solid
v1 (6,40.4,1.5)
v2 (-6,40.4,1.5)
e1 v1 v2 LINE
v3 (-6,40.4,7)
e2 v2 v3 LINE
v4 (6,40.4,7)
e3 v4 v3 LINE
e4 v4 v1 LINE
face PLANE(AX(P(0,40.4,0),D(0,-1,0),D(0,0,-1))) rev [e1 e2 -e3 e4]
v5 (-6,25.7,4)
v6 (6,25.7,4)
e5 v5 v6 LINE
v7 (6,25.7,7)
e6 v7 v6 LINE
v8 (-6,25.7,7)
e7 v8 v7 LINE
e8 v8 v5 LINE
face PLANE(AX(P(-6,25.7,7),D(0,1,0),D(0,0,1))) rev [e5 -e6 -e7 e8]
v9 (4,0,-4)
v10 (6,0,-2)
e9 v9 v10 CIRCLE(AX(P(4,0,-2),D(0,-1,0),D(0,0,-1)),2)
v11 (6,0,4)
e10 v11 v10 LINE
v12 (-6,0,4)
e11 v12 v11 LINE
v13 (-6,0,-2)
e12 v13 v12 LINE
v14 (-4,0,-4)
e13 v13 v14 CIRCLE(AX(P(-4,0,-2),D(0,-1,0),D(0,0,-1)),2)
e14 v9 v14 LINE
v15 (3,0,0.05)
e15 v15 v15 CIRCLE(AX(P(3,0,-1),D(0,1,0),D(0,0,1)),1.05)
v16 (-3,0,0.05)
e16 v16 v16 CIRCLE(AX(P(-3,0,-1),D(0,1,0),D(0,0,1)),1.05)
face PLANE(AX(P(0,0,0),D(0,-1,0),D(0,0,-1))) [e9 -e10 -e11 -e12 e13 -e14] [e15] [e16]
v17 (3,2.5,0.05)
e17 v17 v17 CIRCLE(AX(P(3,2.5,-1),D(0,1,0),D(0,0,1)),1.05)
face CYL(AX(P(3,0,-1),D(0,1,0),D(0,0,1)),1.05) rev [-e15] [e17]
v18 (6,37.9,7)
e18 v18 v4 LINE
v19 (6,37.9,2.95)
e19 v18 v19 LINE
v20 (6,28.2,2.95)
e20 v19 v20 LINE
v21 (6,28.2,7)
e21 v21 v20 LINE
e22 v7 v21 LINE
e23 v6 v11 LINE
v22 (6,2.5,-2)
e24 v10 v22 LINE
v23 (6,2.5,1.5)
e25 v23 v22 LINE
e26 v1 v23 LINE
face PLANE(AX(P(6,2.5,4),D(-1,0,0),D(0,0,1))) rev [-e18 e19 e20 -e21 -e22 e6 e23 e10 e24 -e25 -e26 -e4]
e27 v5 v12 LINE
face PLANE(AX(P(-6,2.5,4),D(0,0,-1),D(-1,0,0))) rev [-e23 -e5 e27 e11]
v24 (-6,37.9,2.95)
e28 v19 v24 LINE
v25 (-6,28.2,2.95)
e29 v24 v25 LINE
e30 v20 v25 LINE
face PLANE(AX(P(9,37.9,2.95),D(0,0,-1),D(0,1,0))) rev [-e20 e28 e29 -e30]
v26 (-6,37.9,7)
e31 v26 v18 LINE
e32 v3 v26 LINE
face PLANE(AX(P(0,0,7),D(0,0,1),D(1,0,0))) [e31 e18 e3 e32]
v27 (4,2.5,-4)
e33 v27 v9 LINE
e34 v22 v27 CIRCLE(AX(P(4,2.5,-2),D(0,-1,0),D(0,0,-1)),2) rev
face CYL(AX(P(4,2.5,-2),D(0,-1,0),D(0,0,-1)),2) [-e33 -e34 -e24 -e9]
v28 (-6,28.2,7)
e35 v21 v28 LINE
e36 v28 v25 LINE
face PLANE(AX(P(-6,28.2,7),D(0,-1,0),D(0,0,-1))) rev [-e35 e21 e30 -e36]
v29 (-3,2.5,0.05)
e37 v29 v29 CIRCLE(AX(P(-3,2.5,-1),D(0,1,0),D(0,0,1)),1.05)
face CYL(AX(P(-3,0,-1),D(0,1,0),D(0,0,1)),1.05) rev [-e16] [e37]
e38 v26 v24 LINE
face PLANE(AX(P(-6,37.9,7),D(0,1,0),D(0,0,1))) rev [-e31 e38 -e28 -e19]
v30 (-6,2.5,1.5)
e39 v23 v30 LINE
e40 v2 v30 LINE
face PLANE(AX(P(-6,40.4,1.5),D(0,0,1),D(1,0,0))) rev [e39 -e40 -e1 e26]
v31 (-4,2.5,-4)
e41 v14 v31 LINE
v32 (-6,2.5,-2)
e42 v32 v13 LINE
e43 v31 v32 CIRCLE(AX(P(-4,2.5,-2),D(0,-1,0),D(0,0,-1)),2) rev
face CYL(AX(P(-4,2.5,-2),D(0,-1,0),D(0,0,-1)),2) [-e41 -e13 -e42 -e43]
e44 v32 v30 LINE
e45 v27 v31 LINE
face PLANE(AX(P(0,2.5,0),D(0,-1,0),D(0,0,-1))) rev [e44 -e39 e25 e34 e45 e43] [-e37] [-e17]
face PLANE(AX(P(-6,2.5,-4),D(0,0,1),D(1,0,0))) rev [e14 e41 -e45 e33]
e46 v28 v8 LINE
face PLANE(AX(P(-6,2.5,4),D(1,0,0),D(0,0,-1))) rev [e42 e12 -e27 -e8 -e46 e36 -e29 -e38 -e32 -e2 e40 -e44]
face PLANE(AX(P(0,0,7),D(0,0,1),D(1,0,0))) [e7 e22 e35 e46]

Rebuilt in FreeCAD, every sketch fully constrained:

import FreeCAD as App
import Part
import Sketcher
from FreeCAD import Vector
Q = App.Units.Quantity


def edges_at(feature, points):
    """Names of the edges that pass closest to the given points."""
    edges = feature.Shape.Edges
    near = lambda p: min(range(len(edges)), key=lambda i: edges[i].distToShape(Part.Vertex(*p))[0])
    return sorted({f"Edge{near(p) + 1}" for p in points})

doc = App.newDocument("Part")
params = doc.addObject("Spreadsheet::Sheet", "Params")
for row, (alias, value) in enumerate([
    ("sketch1_width", "12 mm"),
    ("sketch1_height", "8 mm"),
    ("pad1_length", "2.5 mm"),
    ("fillet_radius", "2 mm"),
    ("sketch2_diameter", "2.1 mm"),
    ("pocket1_length", "2.5 mm"),
    ("sketch3_width", "12 mm"),
    ("sketch3_height", "2.5 mm"),
    ("pad2_length", "37.9 mm"),
    ("sketch4_width", "12 mm"),
    ("sketch4_height", "2.5 mm"),
    ("pad3_length", "3 mm"),
    ("sketch5_width", "12 mm"),
    ("sketch5_height", "2.5 mm"),
    ("pad4_length", "3 mm"),
    ("sketch6_width", "9.7 mm"),
    ("sketch6_height", "1.05 mm"),
    ("pocket2_length", "15 mm"),
], start=1):
    params.set(f"A{row}", alias)
    params.set(f"B{row}", "=" + value)
    params.setAlias(f"B{row}", alias)

body = doc.addObject("PartDesign::Body", "Body")

# Sketch on XZ plane
sketch1 = doc.addObject("Sketcher::SketchObject", "Sketch")
body.addObject(sketch1)
sketch1.AttachmentSupport = (doc.XZ_Plane, [""])
sketch1.MapMode = "FlatFace"
sketch1.addGeometry(Part.LineSegment(Vector(-6, -4, 0), Vector(-6, 4, 0)), False)
sketch1.addGeometry(Part.LineSegment(Vector(-6, 4, 0), Vector(6, 4, 0)), False)
sketch1.addGeometry(Part.LineSegment(Vector(6, 4, 0), Vector(6, -4, 0)), False)
sketch1.addGeometry(Part.LineSegment(Vector(6, -4, 0), Vector(-6, -4, 0)), False)
sketch1.addConstraint(Sketcher.Constraint("Coincident", 0, 2, 1, 1))
sketch1.addConstraint(Sketcher.Constraint("Coincident", 1, 2, 2, 1))
sketch1.addConstraint(Sketcher.Constraint("Coincident", 2, 2, 3, 1))
sketch1.addConstraint(Sketcher.Constraint("Coincident", 3, 2, 0, 1))
sketch1.addConstraint(Sketcher.Constraint("Vertical", 0))
sketch1.addConstraint(Sketcher.Constraint("Horizontal", 1))
sketch1.addConstraint(Sketcher.Constraint("Vertical", 2))
sketch1.addConstraint(Sketcher.Constraint("Horizontal", 3))
sketch1.addConstraint(Sketcher.Constraint("Symmetric", 0, 2, 2, 2, -1, 1))
sketch1.addConstraint(Sketcher.Constraint("DistanceX", 1, 1, 1, 2, Q("12 mm")))
sketch1.addConstraint(Sketcher.Constraint("DistanceY", 0, 1, 0, 2, Q("8 mm")))
sketch1.setExpression("Constraints[9]", "Params.sketch1_width")
sketch1.setExpression("Constraints[10]", "Params.sketch1_height")
pad1 = doc.addObject("PartDesign::Pad", "Pad")
body.addObject(pad1)
pad1.Profile = sketch1
pad1.setExpression("Length", "Params.pad1_length")
pad1.Reversed = True
doc.recompute()

fillet = doc.addObject("PartDesign::Fillet", "Fillet")
body.addObject(fillet)
fillet.Base = (pad1, edges_at(pad1, [(-6, 1.25, -4), (6, 1.25, -4)]))
fillet.setExpression("Radius", "Params.fillet_radius")

# Sketch on XZ plane
sketch2 = doc.addObject("Sketcher::SketchObject", "Sketch001")
body.addObject(sketch2)
sketch2.AttachmentSupport = (doc.XZ_Plane, [""])
sketch2.MapMode = "FlatFace"
sketch2.AttachmentOffset = App.Placement(Vector(0, 0, -2.5), App.Rotation())
sketch2.addGeometry(Part.Circle(Vector(3, -1, 0), Vector(0, 0, 1), 1.05), False)
sketch2.addGeometry(Part.Circle(Vector(-3, -1, 0), Vector(0, 0, 1), 1.05), False)
sketch2.addConstraint(Sketcher.Constraint("Equal", 0, 1))
sketch2.addConstraint(Sketcher.Constraint("Symmetric", 0, 3, 1, 3, -2))
sketch2.addConstraint(Sketcher.Constraint("Diameter", 0, Q("2.1 mm")))
sketch2.addConstraint(Sketcher.Constraint("DistanceX", -1, 1, 0, 3, Q("3 mm")))
sketch2.addConstraint(Sketcher.Constraint("DistanceY", 0, 3, -1, 1, Q("1 mm")))
sketch2.setExpression("Constraints[2]", "Params.sketch2_diameter")
pocket1 = doc.addObject("PartDesign::Pocket", "Pocket")
body.addObject(pocket1)
pocket1.Profile = sketch2
pocket1.setExpression("Length", "Params.pocket1_length")
pocket1.Reversed = True

# Sketch on XZ plane
sketch3 = doc.addObject("Sketcher::SketchObject", "Sketch002")
body.addObject(sketch3)
sketch3.AttachmentSupport = (doc.XZ_Plane, [""])
sketch3.MapMode = "FlatFace"
sketch3.AttachmentOffset = App.Placement(Vector(0, 0, -2.5), App.Rotation())
sketch3.addGeometry(Part.LineSegment(Vector(-6, 1.5, 0), Vector(-6, 4, 0)), False)
sketch3.addGeometry(Part.LineSegment(Vector(-6, 4, 0), Vector(6, 4, 0)), False)
sketch3.addGeometry(Part.LineSegment(Vector(6, 4, 0), Vector(6, 1.5, 0)), False)
sketch3.addGeometry(Part.LineSegment(Vector(6, 1.5, 0), Vector(-6, 1.5, 0)), False)
sketch3.addConstraint(Sketcher.Constraint("Coincident", 0, 2, 1, 1))
sketch3.addConstraint(Sketcher.Constraint("Coincident", 1, 2, 2, 1))
sketch3.addConstraint(Sketcher.Constraint("Coincident", 2, 2, 3, 1))
sketch3.addConstraint(Sketcher.Constraint("Coincident", 3, 2, 0, 1))
sketch3.addConstraint(Sketcher.Constraint("Vertical", 0))
sketch3.addConstraint(Sketcher.Constraint("Horizontal", 1))
sketch3.addConstraint(Sketcher.Constraint("Vertical", 2))
sketch3.addConstraint(Sketcher.Constraint("Horizontal", 3))
sketch3.addConstraint(Sketcher.Constraint("DistanceX", 1, 1, 1, 2, Q("12 mm")))
sketch3.addConstraint(Sketcher.Constraint("DistanceY", 0, 1, 0, 2, Q("2.5 mm")))
sketch3.addConstraint(Sketcher.Constraint("DistanceX", 0, 2, -1, 1, Q("6 mm")))
sketch3.addConstraint(Sketcher.Constraint("DistanceY", -1, 1, 0, 2, Q("4 mm")))
sketch3.setExpression("Constraints[8]", "Params.sketch3_width")
sketch3.setExpression("Constraints[9]", "Params.sketch3_height")
pad2 = doc.addObject("PartDesign::Pad", "Pad001")
body.addObject(pad2)
pad2.Profile = sketch3
pad2.setExpression("Length", "Params.pad2_length")
pad2.Reversed = True

# Sketch on XY plane
sketch4 = doc.addObject("Sketcher::SketchObject", "Sketch003")
body.addObject(sketch4)
sketch4.AttachmentSupport = (doc.XY_Plane, [""])
sketch4.MapMode = "FlatFace"
sketch4.AttachmentOffset = App.Placement(Vector(0, 0, 4), App.Rotation())
sketch4.addGeometry(Part.LineSegment(Vector(-6, 40.4, 0), Vector(-6, 37.9, 0)), False)
sketch4.addGeometry(Part.LineSegment(Vector(-6, 37.9, 0), Vector(6, 37.9, 0)), False)
sketch4.addGeometry(Part.LineSegment(Vector(6, 37.9, 0), Vector(6, 40.4, 0)), False)
sketch4.addGeometry(Part.LineSegment(Vector(6, 40.4, 0), Vector(-6, 40.4, 0)), False)
sketch4.addConstraint(Sketcher.Constraint("Coincident", 0, 2, 1, 1))
sketch4.addConstraint(Sketcher.Constraint("Coincident", 1, 2, 2, 1))
sketch4.addConstraint(Sketcher.Constraint("Coincident", 2, 2, 3, 1))
sketch4.addConstraint(Sketcher.Constraint("Coincident", 3, 2, 0, 1))
sketch4.addConstraint(Sketcher.Constraint("Vertical", 0))
sketch4.addConstraint(Sketcher.Constraint("Horizontal", 1))
sketch4.addConstraint(Sketcher.Constraint("Vertical", 2))
sketch4.addConstraint(Sketcher.Constraint("Horizontal", 3))
sketch4.addConstraint(Sketcher.Constraint("DistanceX", 1, 1, 1, 2, Q("12 mm")))
sketch4.addConstraint(Sketcher.Constraint("DistanceY", 0, 2, 0, 1, Q("2.5 mm")))
sketch4.addConstraint(Sketcher.Constraint("DistanceX", 0, 2, -1, 1, Q("6 mm")))
sketch4.addConstraint(Sketcher.Constraint("DistanceY", -1, 1, 0, 2, Q("37.9 mm")))
sketch4.setExpression("Constraints[8]", "Params.sketch4_width")
sketch4.setExpression("Constraints[9]", "Params.sketch4_height")
pad3 = doc.addObject("PartDesign::Pad", "Pad002")
body.addObject(pad3)
pad3.Profile = sketch4
pad3.setExpression("Length", "Params.pad3_length")

# Sketch on XY plane
sketch5 = doc.addObject("Sketcher::SketchObject", "Sketch004")
body.addObject(sketch5)
sketch5.AttachmentSupport = (doc.XY_Plane, [""])
sketch5.MapMode = "FlatFace"
sketch5.AttachmentOffset = App.Placement(Vector(0, 0, 4), App.Rotation())
sketch5.addGeometry(Part.LineSegment(Vector(-6, 28.2, 0), Vector(-6, 25.7, 0)), False)
sketch5.addGeometry(Part.LineSegment(Vector(-6, 25.7, 0), Vector(6, 25.7, 0)), False)
sketch5.addGeometry(Part.LineSegment(Vector(6, 25.7, 0), Vector(6, 28.2, 0)), False)
sketch5.addGeometry(Part.LineSegment(Vector(6, 28.2, 0), Vector(-6, 28.2, 0)), False)
sketch5.addConstraint(Sketcher.Constraint("Coincident", 0, 2, 1, 1))
sketch5.addConstraint(Sketcher.Constraint("Coincident", 1, 2, 2, 1))
sketch5.addConstraint(Sketcher.Constraint("Coincident", 2, 2, 3, 1))
sketch5.addConstraint(Sketcher.Constraint("Coincident", 3, 2, 0, 1))
sketch5.addConstraint(Sketcher.Constraint("Vertical", 0))
sketch5.addConstraint(Sketcher.Constraint("Horizontal", 1))
sketch5.addConstraint(Sketcher.Constraint("Vertical", 2))
sketch5.addConstraint(Sketcher.Constraint("Horizontal", 3))
sketch5.addConstraint(Sketcher.Constraint("DistanceX", 1, 1, 1, 2, Q("12 mm")))
sketch5.addConstraint(Sketcher.Constraint("DistanceY", 0, 2, 0, 1, Q("2.5 mm")))
sketch5.addConstraint(Sketcher.Constraint("DistanceX", 0, 2, -1, 1, Q("6 mm")))
sketch5.addConstraint(Sketcher.Constraint("DistanceY", -1, 1, 0, 2, Q("25.7 mm")))
sketch5.setExpression("Constraints[8]", "Params.sketch5_width")
sketch5.setExpression("Constraints[9]", "Params.sketch5_height")
pad4 = doc.addObject("PartDesign::Pad", "Pad003")
body.addObject(pad4)
pad4.Profile = sketch5
pad4.setExpression("Length", "Params.pad4_length")

# Sketch on YZ plane
sketch6 = doc.addObject("Sketcher::SketchObject", "Sketch005")
body.addObject(sketch6)
sketch6.AttachmentSupport = (doc.YZ_Plane, [""])
sketch6.MapMode = "FlatFace"
sketch6.AttachmentOffset = App.Placement(Vector(0, 0, -6), App.Rotation())
sketch6.addGeometry(Part.LineSegment(Vector(37.9, 2.95, 0), Vector(28.2, 2.95, 0)), False)
sketch6.addGeometry(Part.LineSegment(Vector(28.2, 2.95, 0), Vector(28.2, 4, 0)), False)
sketch6.addGeometry(Part.LineSegment(Vector(28.2, 4, 0), Vector(37.9, 4, 0)), False)
sketch6.addGeometry(Part.LineSegment(Vector(37.9, 4, 0), Vector(37.9, 2.95, 0)), False)
sketch6.addConstraint(Sketcher.Constraint("Coincident", 0, 2, 1, 1))
sketch6.addConstraint(Sketcher.Constraint("Coincident", 1, 2, 2, 1))
sketch6.addConstraint(Sketcher.Constraint("Coincident", 2, 2, 3, 1))
sketch6.addConstraint(Sketcher.Constraint("Coincident", 3, 2, 0, 1))
sketch6.addConstraint(Sketcher.Constraint("Horizontal", 0))
sketch6.addConstraint(Sketcher.Constraint("Vertical", 1))
sketch6.addConstraint(Sketcher.Constraint("Horizontal", 2))
sketch6.addConstraint(Sketcher.Constraint("Vertical", 3))
sketch6.addConstraint(Sketcher.Constraint("DistanceX", 0, 2, 0, 1, Q("9.7 mm")))
sketch6.addConstraint(Sketcher.Constraint("DistanceY", -1, 1, 1, 2, Q("4 mm")))
sketch6.addConstraint(Sketcher.Constraint("DistanceY", 1, 1, 1, 2, Q("1.05 mm")))
sketch6.addConstraint(Sketcher.Constraint("DistanceX", -1, 1, 0, 2, Q("28.2 mm")))
sketch6.setExpression("Constraints[8]", "Params.sketch6_width")
sketch6.setExpression("Constraints[10]", "Params.sketch6_height")
pocket2 = doc.addObject("PartDesign::Pocket", "Pocket001")
body.addObject(pocket2)
pocket2.Profile = sketch6
pocket2.setExpression("Length", "Params.pocket2_length")
pocket2.Reversed = True

doc.recompute()
